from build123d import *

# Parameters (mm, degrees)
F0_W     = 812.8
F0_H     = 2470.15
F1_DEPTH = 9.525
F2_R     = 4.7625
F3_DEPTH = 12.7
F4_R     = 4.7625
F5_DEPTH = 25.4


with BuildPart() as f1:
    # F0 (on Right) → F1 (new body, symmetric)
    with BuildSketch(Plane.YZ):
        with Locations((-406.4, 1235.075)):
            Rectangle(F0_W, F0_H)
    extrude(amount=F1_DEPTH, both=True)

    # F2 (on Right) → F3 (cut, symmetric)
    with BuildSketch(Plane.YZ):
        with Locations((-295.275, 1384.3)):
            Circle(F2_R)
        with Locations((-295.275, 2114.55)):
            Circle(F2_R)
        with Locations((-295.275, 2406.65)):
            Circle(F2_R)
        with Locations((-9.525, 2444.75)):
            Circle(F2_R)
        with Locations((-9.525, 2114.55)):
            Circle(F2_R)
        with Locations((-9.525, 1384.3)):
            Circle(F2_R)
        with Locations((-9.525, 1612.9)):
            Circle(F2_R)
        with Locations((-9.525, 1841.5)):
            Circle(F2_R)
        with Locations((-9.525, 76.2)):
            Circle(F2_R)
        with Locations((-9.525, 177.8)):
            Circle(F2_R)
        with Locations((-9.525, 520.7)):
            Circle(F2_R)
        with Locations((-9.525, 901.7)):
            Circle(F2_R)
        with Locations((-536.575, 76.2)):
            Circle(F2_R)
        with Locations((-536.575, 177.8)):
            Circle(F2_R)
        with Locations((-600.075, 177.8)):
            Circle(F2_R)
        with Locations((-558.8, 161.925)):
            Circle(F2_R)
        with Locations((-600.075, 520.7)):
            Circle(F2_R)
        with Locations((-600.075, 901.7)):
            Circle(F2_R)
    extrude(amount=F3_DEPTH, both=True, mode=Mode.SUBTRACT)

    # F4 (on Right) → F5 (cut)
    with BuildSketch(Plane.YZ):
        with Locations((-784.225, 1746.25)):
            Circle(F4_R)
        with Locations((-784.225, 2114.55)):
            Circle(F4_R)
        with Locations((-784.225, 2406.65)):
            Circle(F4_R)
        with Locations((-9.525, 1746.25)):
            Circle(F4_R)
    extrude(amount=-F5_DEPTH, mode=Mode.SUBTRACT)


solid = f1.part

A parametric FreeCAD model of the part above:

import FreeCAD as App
import Part
import Sketcher
from FreeCAD import Vector
Q = App.Units.Quantity


def add_polygon(sketch, points):
    """Adds a closed chain of lines whose ends are joined by coincident constraints."""
    first, n = sketch.GeometryCount, len(points)
    for a, b in zip(points, points[1:] + points[:1]):
        sketch.addGeometry(Part.LineSegment(App.Vector(*a, 0), App.Vector(*b, 0)), False)
    for i in range(n):
        sketch.addConstraint(Sketcher.Constraint("Coincident", first + i, 2, first + (i + 1) % n, 1))

doc = App.newDocument("Part")
body = doc.addObject("PartDesign::Body", "Body")

sketch1 = body.newObject("Sketcher::SketchObject", "Sketch")
sketch1.AttachmentSupport = (doc.getObject("YZ_Plane"), [""])
sketch1.MapMode = "FlatFace"
add_polygon(sketch1, [(-813, 2470), (-813, 0), (0, 0), (0, 2470)])
sketch1.addConstraint(Sketcher.Constraint("Vertical", 0))
sketch1.addConstraint(Sketcher.Constraint("Horizontal", 1))
sketch1.addConstraint(Sketcher.Constraint("Vertical", 2))
sketch1.addConstraint(Sketcher.Constraint("Horizontal", 3))
sketch1.addConstraint(Sketcher.Constraint("Coincident", 1, 2, -1, 1))
sketch1.addConstraint(Sketcher.Constraint("DistanceX", 1, 1, 1, 2, Q("32 in")))
sketch1.addConstraint(Sketcher.Constraint("DistanceY", 0, 2, 0, 1, Q("97.25 in")))
pad1 = body.newObject("PartDesign::Pad", "Pad")
pad1.Profile = sketch1
pad1.Length = Q("0.75 in")
pad1.Midplane = True

sketch2 = body.newObject("Sketcher::SketchObject", "Sketch001")
sketch2.AttachmentSupport = (doc.getObject("YZ_Plane"), [""])
sketch2.MapMode = "FlatFace"
sketch2.addGeometry(Part.Circle(Vector(-295.3, 1384.3, 0), Vector(0, 0, 1), 4.8), False)
sketch2.addGeometry(Part.Circle(Vector(-295.3, 2114.6, 0), Vector(0, 0, 1), 4.8), False)
sketch2.addGeometry(Part.Circle(Vector(-295.3, 2406.7, 0), Vector(0, 0, 1), 4.8), False)
sketch2.addGeometry(Part.Circle(Vector(-9.5, 2444.8, 0), Vector(0, 0, 1), 4.8), False)
sketch2.addGeometry(Part.Circle(Vector(-9.5, 2114.6, 0), Vector(0, 0, 1), 4.8), False)
sketch2.addGeometry(Part.Circle(Vector(-9.5, 1384.3, 0), Vector(0, 0, 1), 4.8), False)
sketch2.addGeometry(Part.Circle(Vector(-9.5, 1612.9, 0), Vector(0, 0, 1), 4.8), False)
sketch2.addGeometry(Part.Circle(Vector(-9.5, 1841.5, 0), Vector(0, 0, 1), 4.8), False)
sketch2.addGeometry(Part.Circle(Vector(-9.5, 76.2, 0), Vector(0, 0, 1), 4.8), False)
sketch2.addGeometry(Part.Circle(Vector(-9.5, 177.8, 0), Vector(0, 0, 1), 4.8), False)
sketch2.addGeometry(Part.Circle(Vector(-9.5, 520.7, 0), Vector(0, 0, 1), 4.8), False)
sketch2.addGeometry(Part.Circle(Vector(-9.5, 901.7, 0), Vector(0, 0, 1), 4.8), False)
sketch2.addGeometry(Part.Circle(Vector(-536.6, 76.2, 0), Vector(0, 0, 1), 4.8), False)
sketch2.addGeometry(Part.Circle(Vector(-536.6, 177.8, 0), Vector(0, 0, 1), 4.8), False)
sketch2.addGeometry(Part.Circle(Vector(-600.1, 177.8, 0), Vector(0, 0, 1), 4.8), False)
sketch2.addGeometry(Part.Circle(Vector(-558.8, 161.9, 0), Vector(0, 0, 1), 4.8), False)
sketch2.addGeometry(Part.Circle(Vector(-600.1, 520.7, 0), Vector(0, 0, 1), 4.8), False)
sketch2.addGeometry(Part.Circle(Vector(-600.1, 901.7, 0), Vector(0, 0, 1), 4.8), False)
sketch2.addConstraint(Sketcher.Constraint("Equal", 0, 1))
sketch2.addConstraint(Sketcher.Constraint("Equal", 1, 2))
sketch2.addConstraint(Sketcher.Constraint("Equal", 2, 3))
sketch2.addConstraint(Sketcher.Constraint("Equal", 3, 4))
sketch2.addConstraint(Sketcher.Constraint("Equal", 4, 5))
sketch2.addConstraint(Sketcher.Constraint("Equal", 5, 6))
sketch2.addConstraint(Sketcher.Constraint("Equal", 6, 7))
sketch2.addConstraint(Sketcher.Constraint("Equal", 7, 8))
sketch2.addConstraint(Sketcher.Constraint("Equal", 8, 9))
sketch2.addConstraint(Sketcher.Constraint("Equal", 9, 10))
sketch2.addConstraint(Sketcher.Constraint("Equal", 10, 11))
sketch2.addConstraint(Sketcher.Constraint("Equal", 11, 12))
sketch2.addConstraint(Sketcher.Constraint("Equal", 12, 13))
sketch2.addConstraint(Sketcher.Constraint("Equal", 13, 14))
sketch2.addConstraint(Sketcher.Constraint("Equal", 14, 15))
sketch2.addConstraint(Sketcher.Constraint("Equal", 15, 16))
sketch2.addConstraint(Sketcher.Constraint("Equal", 16, 17))
sketch2.addConstraint(Sketcher.Constraint("Horizontal", 1, 3, 4, 3))
sketch2.addConstraint(Sketcher.Constraint("Horizontal", 0, 3, 5, 3))
sketch2.addConstraint(Sketcher.Constraint("Horizontal", 8, 3, 12, 3))
sketch2.addConstraint(Sketcher.Constraint("Horizontal", 9, 3, 13, 3))
sketch2.addConstraint(Sketcher.Constraint("Horizontal", 13, 3, 14, 3))
sketch2.addConstraint(Sketcher.Constraint("Horizontal", 10, 3, 16, 3))
sketch2.addConstraint(Sketcher.Constraint("Horizontal", 11, 3, 17, 3))
sketch2.addConstraint(Sketcher.Constraint("Vertical", 0, 3, 1, 3))
sketch2.addConstraint(Sketcher.Constraint("Vertical", 1, 3, 2, 3))
sketch2.addConstraint(Sketcher.Constraint("Vertical", 3, 3, 4, 3))
sketch2.addConstraint(Sketcher.Constraint("Vertical", 4, 3, 5, 3))
sketch2.addConstraint(Sketcher.Constraint("Vertical", 5, 3, 6, 3))
sketch2.addConstraint(Sketcher.Constraint("Vertical", 6, 3, 7, 3))
sketch2.addConstraint(Sketcher.Constraint("Vertical", 7, 3, 8, 3))
sketch2.addConstraint(Sketcher.Constraint("Vertical", 8, 3, 9, 3))
sketch2.addConstraint(Sketcher.Constraint("Vertical", 9, 3, 10, 3))
sketch2.addConstraint(Sketcher.Constraint("Vertical", 10, 3, 11, 3))
sketch2.addConstraint(Sketcher.Constraint("Vertical", 12, 3, 13, 3))
sketch2.addConstraint(Sketcher.Constraint("Vertical", 14, 3, 16, 3))
sketch2.addConstraint(Sketcher.Constraint("Vertical", 16, 3, 17, 3))
sketch2.addConstraint(Sketcher.Constraint("Diameter", 0, Q("0.375 in")))
sketch2.addConstraint(Sketcher.Constraint("DistanceY", -1, 1, 8, 3, Q("3 in")))
sketch2.addConstraint(Sketcher.Constraint("DistanceY", -1, 1, 9, 3, Q("7 in")))
sketch2.addConstraint(Sketcher.Constraint("DistanceX", 15, 3, -1, 1, Q("22 in")))
sketch2.addConstraint(Sketcher.Constraint("DistanceY", 1, 3, 3, 3, Q("13 in")))
sketch2.addConstraint(Sketcher.Constraint("DistanceY", 5, 3, 6, 3, Q("9 in")))
sketch2.addConstraint(Sketcher.Constraint("DistanceY", 6, 3, 7, 3, Q("9 in")))
sketch2.addConstraint(Sketcher.Constraint("DistanceY", 10, 3, 5, 3, Q("34 in")))
sketch2.addConstraint(Sketcher.Constraint("DistanceY", 10, 3, 11, 3, Q("15 in")))
sketch2.addConstraint(Sketcher.Constraint("DistanceX", 17, 3, 0, 3, Q("12 in")))
sketch2.addConstraint(Sketcher.Constraint("DistanceY", -1, 1, 0, 3, Q("54.5 in")))
sketch2.addConstraint(Sketcher.Constraint("DistanceY", 1, 3, 2, 3, Q("11.5 in")))
sketch2.addConstraint(Sketcher.Constraint("DistanceX", 12, 3, 0, 3, Q("9.5 in")))
sketch2.addConstraint(Sketcher.Constraint("DistanceY", -1, 1, 1, 3, Q("83.25 in")))
sketch2.addConstraint(Sketcher.Constraint("DistanceX", 2, 3, 3, 3, Q("11.25 in")))
sketch2.addConstraint(Sketcher.Constraint("DistanceX", 0, 3, -1, 1, Q("11.625 in")))
sketch2.addConstraint(Sketcher.Constraint("DistanceY", -1, 1, 15, 3, Q("6.375 in")))
pocket1 = body.newObject("PartDesign::Pocket", "Pocket")
pocket1.Profile = sketch2
pocket1.Length = Q("1 in")
pocket1.Midplane = True

sketch3 = body.newObject("Sketcher::SketchObject", "Sketch002")
sketch3.AttachmentSupport = (doc.getObject("YZ_Plane"), [""])
sketch3.MapMode = "FlatFace"
sketch3.addGeometry(Part.Circle(Vector(-784.2, 1746.2, 0), Vector(0, 0, 1), 4.8), False)
sketch3.addGeometry(Part.Circle(Vector(-784.2, 2114.6, 0), Vector(0, 0, 1), 4.8), False)
sketch3.addGeometry(Part.Circle(Vector(-784.2, 2406.7, 0), Vector(0, 0, 1), 4.8), False)
sketch3.addGeometry(Part.Circle(Vector(-9.5, 1746.2, 0), Vector(0, 0, 1), 4.8), False)
sketch3.addConstraint(Sketcher.Constraint("Equal", 0, 1))
sketch3.addConstraint(Sketcher.Constraint("Equal", 1, 2))
sketch3.addConstraint(Sketcher.Constraint("Equal", 2, 3))
sketch3.addConstraint(Sketcher.Constraint("Horizontal", 0, 3, 3, 3))
sketch3.addConstraint(Sketcher.Constraint("Vertical", 0, 3, 1, 3))
sketch3.addConstraint(Sketcher.Constraint("Vertical", 1, 3, 2, 3))
sketch3.addConstraint(Sketcher.Constraint("Diameter", 0, Q("0.375 in")))
sketch3.addConstraint(Sketcher.Constraint("DistanceY", 0, 3, 2, 3, Q("26 in")))
sketch3.addConstraint(Sketcher.Constraint("DistanceY", 0, 3, 1, 3, Q("14.5 in")))
sketch3.addConstraint(Sketcher.Constraint("DistanceX", 0, 3, 3, 3, Q("30.5 in")))
sketch3.addConstraint(Sketcher.Constraint("DistanceY", -1, 1, 0, 3, Q("68.75 in")))
sketch3.addConstraint(Sketcher.Constraint("DistanceX", 0, 3, -1, 1, Q("30.875 in")))
pocket2 = body.newObject("PartDesign::Pocket", "Pocket001")
pocket2.Profile = sketch3
pocket2.Length = Q("1 in")

doc.recompute()
